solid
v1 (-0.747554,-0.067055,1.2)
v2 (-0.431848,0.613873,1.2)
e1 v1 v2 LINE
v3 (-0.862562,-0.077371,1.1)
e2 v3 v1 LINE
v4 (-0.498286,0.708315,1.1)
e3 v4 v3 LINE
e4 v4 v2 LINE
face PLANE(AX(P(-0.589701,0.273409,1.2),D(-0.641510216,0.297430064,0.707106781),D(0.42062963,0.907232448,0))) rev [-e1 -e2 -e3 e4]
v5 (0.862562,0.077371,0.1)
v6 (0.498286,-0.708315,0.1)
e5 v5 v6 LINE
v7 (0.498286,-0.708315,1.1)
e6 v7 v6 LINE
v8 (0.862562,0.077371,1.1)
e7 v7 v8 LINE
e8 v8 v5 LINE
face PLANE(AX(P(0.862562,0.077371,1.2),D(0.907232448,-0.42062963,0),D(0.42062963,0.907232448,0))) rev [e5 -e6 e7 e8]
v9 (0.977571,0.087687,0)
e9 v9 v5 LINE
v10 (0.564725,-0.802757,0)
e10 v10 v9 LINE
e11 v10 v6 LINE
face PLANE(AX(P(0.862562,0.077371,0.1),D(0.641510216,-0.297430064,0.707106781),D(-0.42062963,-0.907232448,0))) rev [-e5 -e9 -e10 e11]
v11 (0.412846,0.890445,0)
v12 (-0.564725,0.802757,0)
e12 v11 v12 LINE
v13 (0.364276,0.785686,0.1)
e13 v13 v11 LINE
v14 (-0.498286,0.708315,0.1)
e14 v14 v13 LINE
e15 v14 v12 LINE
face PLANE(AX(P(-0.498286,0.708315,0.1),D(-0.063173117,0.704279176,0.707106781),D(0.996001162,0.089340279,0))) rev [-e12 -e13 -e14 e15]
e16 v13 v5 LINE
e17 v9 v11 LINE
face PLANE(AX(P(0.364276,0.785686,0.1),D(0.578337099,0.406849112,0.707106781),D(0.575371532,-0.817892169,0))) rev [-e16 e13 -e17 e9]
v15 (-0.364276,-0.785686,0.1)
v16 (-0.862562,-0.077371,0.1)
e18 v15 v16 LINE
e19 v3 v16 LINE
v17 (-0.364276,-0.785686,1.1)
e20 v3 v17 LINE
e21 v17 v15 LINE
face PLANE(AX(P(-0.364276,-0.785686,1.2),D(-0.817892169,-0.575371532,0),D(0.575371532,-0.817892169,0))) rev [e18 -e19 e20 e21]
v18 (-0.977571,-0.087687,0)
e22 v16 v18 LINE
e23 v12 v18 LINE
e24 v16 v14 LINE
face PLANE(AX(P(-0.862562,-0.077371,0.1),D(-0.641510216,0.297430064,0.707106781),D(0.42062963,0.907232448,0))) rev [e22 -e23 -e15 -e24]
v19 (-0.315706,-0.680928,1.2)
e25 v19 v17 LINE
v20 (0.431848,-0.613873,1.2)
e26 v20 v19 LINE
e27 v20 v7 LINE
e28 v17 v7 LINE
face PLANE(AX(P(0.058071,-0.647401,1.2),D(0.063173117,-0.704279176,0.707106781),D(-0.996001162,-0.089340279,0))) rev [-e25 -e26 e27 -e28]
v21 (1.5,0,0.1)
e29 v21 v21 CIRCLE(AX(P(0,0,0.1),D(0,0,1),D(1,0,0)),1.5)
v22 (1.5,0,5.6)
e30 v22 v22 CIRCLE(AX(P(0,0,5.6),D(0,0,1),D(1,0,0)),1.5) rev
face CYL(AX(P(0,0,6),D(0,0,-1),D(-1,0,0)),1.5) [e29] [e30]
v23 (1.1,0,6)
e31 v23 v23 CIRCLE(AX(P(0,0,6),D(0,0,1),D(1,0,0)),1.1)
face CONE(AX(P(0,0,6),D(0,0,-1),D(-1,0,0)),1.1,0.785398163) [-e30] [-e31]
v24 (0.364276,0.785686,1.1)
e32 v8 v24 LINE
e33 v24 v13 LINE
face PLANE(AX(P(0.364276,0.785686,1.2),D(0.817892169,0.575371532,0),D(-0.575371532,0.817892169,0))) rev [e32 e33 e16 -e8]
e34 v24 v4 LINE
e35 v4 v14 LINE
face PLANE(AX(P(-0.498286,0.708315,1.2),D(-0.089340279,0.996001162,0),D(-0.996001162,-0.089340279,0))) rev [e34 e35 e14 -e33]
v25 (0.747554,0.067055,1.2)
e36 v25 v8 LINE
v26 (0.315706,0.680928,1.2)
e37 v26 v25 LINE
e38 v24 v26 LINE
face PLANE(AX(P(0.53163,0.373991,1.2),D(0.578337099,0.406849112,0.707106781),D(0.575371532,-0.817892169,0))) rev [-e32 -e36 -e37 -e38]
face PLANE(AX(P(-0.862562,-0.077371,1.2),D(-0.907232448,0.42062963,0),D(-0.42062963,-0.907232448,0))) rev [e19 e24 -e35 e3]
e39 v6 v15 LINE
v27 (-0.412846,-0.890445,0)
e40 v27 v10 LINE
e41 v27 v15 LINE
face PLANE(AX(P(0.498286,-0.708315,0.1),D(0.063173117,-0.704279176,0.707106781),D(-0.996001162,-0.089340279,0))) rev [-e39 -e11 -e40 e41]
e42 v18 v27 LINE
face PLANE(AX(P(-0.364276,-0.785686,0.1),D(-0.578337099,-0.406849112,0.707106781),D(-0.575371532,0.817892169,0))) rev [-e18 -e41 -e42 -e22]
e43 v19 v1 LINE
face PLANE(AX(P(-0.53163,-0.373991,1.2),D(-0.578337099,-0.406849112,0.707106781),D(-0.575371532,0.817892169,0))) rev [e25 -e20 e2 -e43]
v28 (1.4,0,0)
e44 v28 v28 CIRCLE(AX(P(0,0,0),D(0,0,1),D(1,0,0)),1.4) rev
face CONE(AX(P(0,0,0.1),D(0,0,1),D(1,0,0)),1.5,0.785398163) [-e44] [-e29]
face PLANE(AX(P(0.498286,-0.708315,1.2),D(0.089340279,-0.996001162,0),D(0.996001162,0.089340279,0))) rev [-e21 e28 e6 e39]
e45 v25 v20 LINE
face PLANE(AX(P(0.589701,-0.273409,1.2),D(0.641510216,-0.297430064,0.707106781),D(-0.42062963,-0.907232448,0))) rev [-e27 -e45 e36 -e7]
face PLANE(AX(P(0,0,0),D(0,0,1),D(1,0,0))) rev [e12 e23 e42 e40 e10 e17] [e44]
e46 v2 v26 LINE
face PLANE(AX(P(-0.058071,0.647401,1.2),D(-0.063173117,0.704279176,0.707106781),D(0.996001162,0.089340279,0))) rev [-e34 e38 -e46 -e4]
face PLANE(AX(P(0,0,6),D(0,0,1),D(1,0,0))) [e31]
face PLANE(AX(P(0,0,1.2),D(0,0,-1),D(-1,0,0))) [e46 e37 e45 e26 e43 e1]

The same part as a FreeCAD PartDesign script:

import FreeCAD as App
import Part
import Sketcher
Q = App.Units.Quantity


def edges_at(feature, points):
    """Names of the edges that pass closest to the given points."""
    edges = feature.Shape.Edges
    near = lambda p: min(range(len(edges)), key=lambda i: edges[i].distToShape(Part.Vertex(*p))[0])
    return sorted({f"Edge{near(p) + 1}" for p in points})

doc = App.newDocument("Part")
params = doc.addObject("Spreadsheet::Sheet", "Params")
for row, (alias, value) in enumerate([
    ("sketch1_diameter", "3 mm"),
    ("pad1_length", "6 mm"),
    ("chamfer_size", "0.4 mm"),
    ("pocket1_length", "1.2 mm"),
    ("chamfer2_size", "0.1 mm"),
], start=1):
    params.set(f"A{row}", alias)
    params.set(f"B{row}", "=" + value)
    params.setAlias(f"B{row}", alias)

body = doc.addObject("PartDesign::Body", "Body")

# Sketch on XY plane
sketch1 = body.newObject("Sketcher::SketchObject", "Sketch")
sketch1.AttachmentSupport = (doc.getObject("XY_Plane"), [""])
sketch1.MapMode = "FlatFace"
sketch1.addGeometry(Part.Circle(App.Vector(0, 0, 0), App.Vector(0, 0, 1), 1.5), False)
sketch1.addConstraint(Sketcher.Constraint("Coincident", 0, 3, -1, 1))
sketch1.addConstraint(Sketcher.Constraint("Diameter", 0, Q("3 mm")))
sketch1.setExpression("Constraints[1]", "Params.sketch1_diameter")
pad1 = body.newObject("PartDesign::Pad", "Pad")
pad1.Profile = sketch1
pad1.setExpression("Length", "Params.pad1_length")
doc.recompute()

chamfer = body.newObject("PartDesign::Chamfer", "Chamfer")
chamfer.Base = (pad1, edges_at(pad1, [(-1.5, 0, 6)]))
chamfer.setExpression("Size", "Params.chamfer_size")

# Sketch on XY plane
sketch2 = body.newObject("Sketcher::SketchObject", "Sketch001")
sketch2.AttachmentSupport = (doc.getObject("XY_Plane"), [""])
sketch2.MapMode = "FlatFace"
sketch2.addGeometry(Part.LineSegment(App.Vector(-0.498286, 0.708315, 0), App.Vector(0.364276, 0.785686, 0)), False)
sketch2.addGeometry(Part.LineSegment(App.Vector(0.364276, 0.785686, 0), App.Vector(0.862562, 0.077371, 0)), False)
sketch2.addGeometry(Part.LineSegment(App.Vector(0.862562, 0.077371, 0), App.Vector(0.498286, -0.708315, 0)), False)
sketch2.addGeometry(Part.LineSegment(App.Vector(0.498286, -0.708315, 0), App.Vector(-0.364276, -0.785686, 0)), False)
sketch2.addGeometry(Part.LineSegment(App.Vector(-0.364276, -0.785686, 0), App.Vector(-0.862562, -0.077371, 0)), False)
sketch2.addGeometry(Part.LineSegment(App.Vector(-0.862562, -0.077371, 0), App.Vector(-0.498286, 0.708315, 0)), False)
sketch2.addConstraint(Sketcher.Constraint("Coincident", 0, 2, 1, 1))
sketch2.addConstraint(Sketcher.Constraint("Coincident", 1, 2, 2, 1))
sketch2.addConstraint(Sketcher.Constraint("Coincident", 2, 2, 3, 1))
sketch2.addConstraint(Sketcher.Constraint("Coincident", 3, 2, 4, 1))
sketch2.addConstraint(Sketcher.Constraint("Coincident", 4, 2, 5, 1))
sketch2.addConstraint(Sketcher.Constraint("Coincident", 5, 2, 0, 1))
sketch2.addConstraint(Sketcher.Constraint("Symmetric", 0, 2, 3, 2, -1, 1))
sketch2.addConstraint(Sketcher.Constraint("Symmetric", 1, 2, 4, 2, -1, 1))
sketch2.addConstraint(Sketcher.Constraint("Symmetric", 2, 2, 5, 2, -1, 1))
sketch2.addConstraint(Sketcher.Constraint("Equal", 0, 1))
sketch2.addConstraint(Sketcher.Constraint("Equal", 1, 2))
sketch2.addConstraint(Sketcher.Constraint("DistanceY", 2, 2, 0, 2, Q("1.494002 mm")))
sketch2.addConstraint(Sketcher.Constraint("DistanceY", -1, 1, 1, 2, Q("0.077371 mm")))
sketch2.addConstraint(Sketcher.Constraint("DistanceX", 0, 2, 2, 2, Q("0.13401 mm")))
sketch2.addConstraint(Sketcher.Constraint("DistanceY", 3, 2, 2, 2, Q("0.077371 mm")))
pocket1 = body.newObject("PartDesign::Pocket", "Pocket")
pocket1.Profile = sketch2
pocket1.setExpression("Length", "Params.pocket1_length")
pocket1.Reversed = True
doc.recompute()

chamfer2 = body.newObject("PartDesign::Chamfer", "Chamfer001")
chamfer2.Base = (pocket1, edges_at(pocket1, [
    (-0.68, 0.315, 1.2),
    (-0.613, -0.432, 1.2),
    (0.067, -0.747, 1.2),
    (0.68, -0.315, 1.2),
    (0.613, 0.432, 1.2),
    (-0.067, 0.747, 1.2),
    (-0.68, 0.315, 0),
    (-0.067, 0.747, 0),
    (0.613, 0.432, 0),
    (0.68, -0.315, 0),
    (0.067, -0.747, 0),
    (-0.613, -0.432, 0),
    (-1.5, 0, 0),
]))
chamfer2.setExpression("Size", "Params.chamfer2_size")

doc.recompute()
